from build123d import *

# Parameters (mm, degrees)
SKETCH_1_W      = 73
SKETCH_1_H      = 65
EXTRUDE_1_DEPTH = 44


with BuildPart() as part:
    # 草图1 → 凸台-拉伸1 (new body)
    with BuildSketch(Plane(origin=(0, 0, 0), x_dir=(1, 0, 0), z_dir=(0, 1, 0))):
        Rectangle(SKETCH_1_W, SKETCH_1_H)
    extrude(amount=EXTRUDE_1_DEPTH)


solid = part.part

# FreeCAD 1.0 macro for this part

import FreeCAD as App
import Part
import Sketcher

V = App.Vector

doc = App.newDocument("Part")
body = doc.addObject("PartDesign::Body", "Body")

sketch1 = body.newObject("Sketcher::SketchObject", "Sketch")
sketch1.AttachmentSupport = (doc.getObject("XZ_Plane"), [""])
sketch1.MapMode = "FlatFace"
sketch1.addGeometry(Part.LineSegment(V(-36.5, -32.5, 0), V(-36.5, 32.5, 0)), False)
sketch1.addGeometry(Part.LineSegment(V(-36.5, 32.5, 0), V(36.5, 32.5, 0)), False)
sketch1.addGeometry(Part.LineSegment(V(36.5, 32.5, 0), V(36.5, -32.5, 0)), False)
sketch1.addGeometry(Part.LineSegment(V(36.5, -32.5, 0), V(-36.5, -32.5, 0)), False)
sketch1.addConstraint(Sketcher.Constraint("Coincident", 0, 2, 1, 1))
sketch1.addConstraint(Sketcher.Constraint("Coincident", 1, 2, 2, 1))
sketch1.addConstraint(Sketcher.Constraint("Coincident", 2, 2, 3, 1))
sketch1.addConstraint(Sketcher.Constraint("Coincident", 3, 2, 0, 1))
sketch1.addConstraint(Sketcher.Constraint("Vertical", 0))
sketch1.addConstraint(Sketcher.Constraint("Horizontal", 1))
sketch1.addConstraint(Sketcher.Constraint("Vertical", 2))
sketch1.addConstraint(Sketcher.Constraint("Horizontal", 3))
sketch1.addConstraint(Sketcher.Constraint("Symmetric", 0, 2, 2, 2, -1, 1))
sketch1.addConstraint(Sketcher.Constraint("DistanceX", 1, 1, 1, 2, 73.0))
sketch1.addConstraint(Sketcher.Constraint("DistanceY", 0, 1, 0, 2, 65.0))
pad1 = body.newObject("PartDesign::Pad", "Pad")
pad1.Profile = sketch1
pad1.Length = 44
pad1.Reversed = True

doc.recompute()
